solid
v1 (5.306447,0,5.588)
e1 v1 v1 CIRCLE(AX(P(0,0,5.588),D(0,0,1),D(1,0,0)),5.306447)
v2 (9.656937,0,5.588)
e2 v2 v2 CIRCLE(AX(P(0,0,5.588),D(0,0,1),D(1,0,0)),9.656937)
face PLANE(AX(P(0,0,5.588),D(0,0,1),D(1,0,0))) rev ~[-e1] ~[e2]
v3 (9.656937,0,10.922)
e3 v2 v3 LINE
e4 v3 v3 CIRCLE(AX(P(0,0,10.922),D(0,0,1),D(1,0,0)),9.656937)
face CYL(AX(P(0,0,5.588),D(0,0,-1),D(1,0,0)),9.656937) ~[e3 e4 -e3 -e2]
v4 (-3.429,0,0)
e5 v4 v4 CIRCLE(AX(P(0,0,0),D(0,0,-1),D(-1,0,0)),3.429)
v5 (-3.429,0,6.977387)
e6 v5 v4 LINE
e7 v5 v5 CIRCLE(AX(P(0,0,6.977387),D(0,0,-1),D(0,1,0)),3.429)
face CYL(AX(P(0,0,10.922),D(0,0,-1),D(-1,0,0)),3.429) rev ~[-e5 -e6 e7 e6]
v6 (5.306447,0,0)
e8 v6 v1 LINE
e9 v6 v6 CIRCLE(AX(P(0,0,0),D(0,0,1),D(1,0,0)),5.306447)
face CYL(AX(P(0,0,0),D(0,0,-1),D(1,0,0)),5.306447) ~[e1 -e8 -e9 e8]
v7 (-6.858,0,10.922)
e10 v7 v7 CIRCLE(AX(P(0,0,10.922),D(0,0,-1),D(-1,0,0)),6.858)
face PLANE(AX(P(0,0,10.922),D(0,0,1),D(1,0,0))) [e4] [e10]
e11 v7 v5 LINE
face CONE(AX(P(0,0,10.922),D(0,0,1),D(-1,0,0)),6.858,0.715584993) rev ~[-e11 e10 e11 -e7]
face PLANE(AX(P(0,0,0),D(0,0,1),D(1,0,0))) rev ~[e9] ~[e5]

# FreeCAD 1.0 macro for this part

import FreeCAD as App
import Part
import Sketcher

V = App.Vector
Q = App.Units.Quantity

doc = App.newDocument("Part")
params = doc.addObject("Spreadsheet::Sheet", "Params")
for row, (alias, value) in enumerate([
    ("pad1_length", "0.22 in"),
    ("pad2_length", "0.21 in"),
    ("sketch3_diameter", "0.27 in"),
    ("hole_diameter", "0.27 in"),
    ("hole_csink_diameter", "0.54 in"),
], start=1):
    params.set(f"A{row}", alias)
    params.set(f"B{row}", "=" + value)
    params.setAlias(f"B{row}", alias)

body = doc.addObject("PartDesign::Body", "Body")

# Sketch on XY plane
sketch1 = body.newObject("Sketcher::SketchObject", "Sketch")
sketch1.AttachmentSupport = (doc.getObject("XY_Plane"), [""])
sketch1.MapMode = "FlatFace"
sketch1.addGeometry(Part.Circle(V(0, 0, 0), V(0, 0, 1), 5), False)
sketch1.addConstraint([
    Sketcher.Constraint("Coincident", 0, 3, -1, 1),
    Sketcher.Constraint("Diameter", 0, 10.612894),
])
pad1 = body.newObject("PartDesign::Pad", "Pad")
pad1.Profile = sketch1
pad1.setExpression("Length", "Params.pad1_length")

# Sketch on XY plane
sketch2 = body.newObject("Sketcher::SketchObject", "Sketch001")
sketch2.AttachmentSupport = (doc.getObject("XY_Plane"), [""])
sketch2.MapMode = "FlatFace"
sketch2.AttachmentOffset = App.Placement(V(0, 0, 0.22 * 25.4), App.Rotation())
sketch2.addGeometry(Part.Circle(V(0, 0, 0), V(0, 0, 1), 10), False)
sketch2.addConstraint([
    Sketcher.Constraint("Coincident", 0, 3, -1, 1),
    Sketcher.Constraint("Diameter", 0, 19.313874),
])
pad2 = body.newObject("PartDesign::Pad", "Pad001")
pad2.Profile = sketch2
pad2.setExpression("Length", "Params.pad2_length")

# Sketch on XY plane
sketch3 = body.newObject("Sketcher::SketchObject", "Sketch002")
sketch3.AttachmentSupport = (doc.getObject("XY_Plane"), [""])
sketch3.MapMode = "FlatFace"
sketch3.AttachmentOffset = App.Placement(V(0, 0, 0.43 * 25.4), App.Rotation())
sketch3.addGeometry(Part.Circle(V(0, 0, 0), V(0, 0, 1), 3.4), False)
sketch3.addConstraint([
    Sketcher.Constraint("Coincident", 0, 3, -1, 1),
    Sketcher.Constraint("Diameter", 0, Q("0.27 in")),
])
sketch3.setExpression("Constraints[1]", "Params.sketch3_diameter")
doc.recompute()
hole = body.newObject("PartDesign::Hole", "Hole")
hole.Profile = sketch3
hole.ThreadType = "None"
hole.setExpression("Diameter", "Params.hole_diameter")
hole.DepthType = "ThroughAll"
hole.HoleCutType = "Countersink"
hole.setExpression("HoleCutDiameter", "Params.hole_csink_diameter")
hole.HoleCutCountersinkAngle = 82

doc.recompute()
